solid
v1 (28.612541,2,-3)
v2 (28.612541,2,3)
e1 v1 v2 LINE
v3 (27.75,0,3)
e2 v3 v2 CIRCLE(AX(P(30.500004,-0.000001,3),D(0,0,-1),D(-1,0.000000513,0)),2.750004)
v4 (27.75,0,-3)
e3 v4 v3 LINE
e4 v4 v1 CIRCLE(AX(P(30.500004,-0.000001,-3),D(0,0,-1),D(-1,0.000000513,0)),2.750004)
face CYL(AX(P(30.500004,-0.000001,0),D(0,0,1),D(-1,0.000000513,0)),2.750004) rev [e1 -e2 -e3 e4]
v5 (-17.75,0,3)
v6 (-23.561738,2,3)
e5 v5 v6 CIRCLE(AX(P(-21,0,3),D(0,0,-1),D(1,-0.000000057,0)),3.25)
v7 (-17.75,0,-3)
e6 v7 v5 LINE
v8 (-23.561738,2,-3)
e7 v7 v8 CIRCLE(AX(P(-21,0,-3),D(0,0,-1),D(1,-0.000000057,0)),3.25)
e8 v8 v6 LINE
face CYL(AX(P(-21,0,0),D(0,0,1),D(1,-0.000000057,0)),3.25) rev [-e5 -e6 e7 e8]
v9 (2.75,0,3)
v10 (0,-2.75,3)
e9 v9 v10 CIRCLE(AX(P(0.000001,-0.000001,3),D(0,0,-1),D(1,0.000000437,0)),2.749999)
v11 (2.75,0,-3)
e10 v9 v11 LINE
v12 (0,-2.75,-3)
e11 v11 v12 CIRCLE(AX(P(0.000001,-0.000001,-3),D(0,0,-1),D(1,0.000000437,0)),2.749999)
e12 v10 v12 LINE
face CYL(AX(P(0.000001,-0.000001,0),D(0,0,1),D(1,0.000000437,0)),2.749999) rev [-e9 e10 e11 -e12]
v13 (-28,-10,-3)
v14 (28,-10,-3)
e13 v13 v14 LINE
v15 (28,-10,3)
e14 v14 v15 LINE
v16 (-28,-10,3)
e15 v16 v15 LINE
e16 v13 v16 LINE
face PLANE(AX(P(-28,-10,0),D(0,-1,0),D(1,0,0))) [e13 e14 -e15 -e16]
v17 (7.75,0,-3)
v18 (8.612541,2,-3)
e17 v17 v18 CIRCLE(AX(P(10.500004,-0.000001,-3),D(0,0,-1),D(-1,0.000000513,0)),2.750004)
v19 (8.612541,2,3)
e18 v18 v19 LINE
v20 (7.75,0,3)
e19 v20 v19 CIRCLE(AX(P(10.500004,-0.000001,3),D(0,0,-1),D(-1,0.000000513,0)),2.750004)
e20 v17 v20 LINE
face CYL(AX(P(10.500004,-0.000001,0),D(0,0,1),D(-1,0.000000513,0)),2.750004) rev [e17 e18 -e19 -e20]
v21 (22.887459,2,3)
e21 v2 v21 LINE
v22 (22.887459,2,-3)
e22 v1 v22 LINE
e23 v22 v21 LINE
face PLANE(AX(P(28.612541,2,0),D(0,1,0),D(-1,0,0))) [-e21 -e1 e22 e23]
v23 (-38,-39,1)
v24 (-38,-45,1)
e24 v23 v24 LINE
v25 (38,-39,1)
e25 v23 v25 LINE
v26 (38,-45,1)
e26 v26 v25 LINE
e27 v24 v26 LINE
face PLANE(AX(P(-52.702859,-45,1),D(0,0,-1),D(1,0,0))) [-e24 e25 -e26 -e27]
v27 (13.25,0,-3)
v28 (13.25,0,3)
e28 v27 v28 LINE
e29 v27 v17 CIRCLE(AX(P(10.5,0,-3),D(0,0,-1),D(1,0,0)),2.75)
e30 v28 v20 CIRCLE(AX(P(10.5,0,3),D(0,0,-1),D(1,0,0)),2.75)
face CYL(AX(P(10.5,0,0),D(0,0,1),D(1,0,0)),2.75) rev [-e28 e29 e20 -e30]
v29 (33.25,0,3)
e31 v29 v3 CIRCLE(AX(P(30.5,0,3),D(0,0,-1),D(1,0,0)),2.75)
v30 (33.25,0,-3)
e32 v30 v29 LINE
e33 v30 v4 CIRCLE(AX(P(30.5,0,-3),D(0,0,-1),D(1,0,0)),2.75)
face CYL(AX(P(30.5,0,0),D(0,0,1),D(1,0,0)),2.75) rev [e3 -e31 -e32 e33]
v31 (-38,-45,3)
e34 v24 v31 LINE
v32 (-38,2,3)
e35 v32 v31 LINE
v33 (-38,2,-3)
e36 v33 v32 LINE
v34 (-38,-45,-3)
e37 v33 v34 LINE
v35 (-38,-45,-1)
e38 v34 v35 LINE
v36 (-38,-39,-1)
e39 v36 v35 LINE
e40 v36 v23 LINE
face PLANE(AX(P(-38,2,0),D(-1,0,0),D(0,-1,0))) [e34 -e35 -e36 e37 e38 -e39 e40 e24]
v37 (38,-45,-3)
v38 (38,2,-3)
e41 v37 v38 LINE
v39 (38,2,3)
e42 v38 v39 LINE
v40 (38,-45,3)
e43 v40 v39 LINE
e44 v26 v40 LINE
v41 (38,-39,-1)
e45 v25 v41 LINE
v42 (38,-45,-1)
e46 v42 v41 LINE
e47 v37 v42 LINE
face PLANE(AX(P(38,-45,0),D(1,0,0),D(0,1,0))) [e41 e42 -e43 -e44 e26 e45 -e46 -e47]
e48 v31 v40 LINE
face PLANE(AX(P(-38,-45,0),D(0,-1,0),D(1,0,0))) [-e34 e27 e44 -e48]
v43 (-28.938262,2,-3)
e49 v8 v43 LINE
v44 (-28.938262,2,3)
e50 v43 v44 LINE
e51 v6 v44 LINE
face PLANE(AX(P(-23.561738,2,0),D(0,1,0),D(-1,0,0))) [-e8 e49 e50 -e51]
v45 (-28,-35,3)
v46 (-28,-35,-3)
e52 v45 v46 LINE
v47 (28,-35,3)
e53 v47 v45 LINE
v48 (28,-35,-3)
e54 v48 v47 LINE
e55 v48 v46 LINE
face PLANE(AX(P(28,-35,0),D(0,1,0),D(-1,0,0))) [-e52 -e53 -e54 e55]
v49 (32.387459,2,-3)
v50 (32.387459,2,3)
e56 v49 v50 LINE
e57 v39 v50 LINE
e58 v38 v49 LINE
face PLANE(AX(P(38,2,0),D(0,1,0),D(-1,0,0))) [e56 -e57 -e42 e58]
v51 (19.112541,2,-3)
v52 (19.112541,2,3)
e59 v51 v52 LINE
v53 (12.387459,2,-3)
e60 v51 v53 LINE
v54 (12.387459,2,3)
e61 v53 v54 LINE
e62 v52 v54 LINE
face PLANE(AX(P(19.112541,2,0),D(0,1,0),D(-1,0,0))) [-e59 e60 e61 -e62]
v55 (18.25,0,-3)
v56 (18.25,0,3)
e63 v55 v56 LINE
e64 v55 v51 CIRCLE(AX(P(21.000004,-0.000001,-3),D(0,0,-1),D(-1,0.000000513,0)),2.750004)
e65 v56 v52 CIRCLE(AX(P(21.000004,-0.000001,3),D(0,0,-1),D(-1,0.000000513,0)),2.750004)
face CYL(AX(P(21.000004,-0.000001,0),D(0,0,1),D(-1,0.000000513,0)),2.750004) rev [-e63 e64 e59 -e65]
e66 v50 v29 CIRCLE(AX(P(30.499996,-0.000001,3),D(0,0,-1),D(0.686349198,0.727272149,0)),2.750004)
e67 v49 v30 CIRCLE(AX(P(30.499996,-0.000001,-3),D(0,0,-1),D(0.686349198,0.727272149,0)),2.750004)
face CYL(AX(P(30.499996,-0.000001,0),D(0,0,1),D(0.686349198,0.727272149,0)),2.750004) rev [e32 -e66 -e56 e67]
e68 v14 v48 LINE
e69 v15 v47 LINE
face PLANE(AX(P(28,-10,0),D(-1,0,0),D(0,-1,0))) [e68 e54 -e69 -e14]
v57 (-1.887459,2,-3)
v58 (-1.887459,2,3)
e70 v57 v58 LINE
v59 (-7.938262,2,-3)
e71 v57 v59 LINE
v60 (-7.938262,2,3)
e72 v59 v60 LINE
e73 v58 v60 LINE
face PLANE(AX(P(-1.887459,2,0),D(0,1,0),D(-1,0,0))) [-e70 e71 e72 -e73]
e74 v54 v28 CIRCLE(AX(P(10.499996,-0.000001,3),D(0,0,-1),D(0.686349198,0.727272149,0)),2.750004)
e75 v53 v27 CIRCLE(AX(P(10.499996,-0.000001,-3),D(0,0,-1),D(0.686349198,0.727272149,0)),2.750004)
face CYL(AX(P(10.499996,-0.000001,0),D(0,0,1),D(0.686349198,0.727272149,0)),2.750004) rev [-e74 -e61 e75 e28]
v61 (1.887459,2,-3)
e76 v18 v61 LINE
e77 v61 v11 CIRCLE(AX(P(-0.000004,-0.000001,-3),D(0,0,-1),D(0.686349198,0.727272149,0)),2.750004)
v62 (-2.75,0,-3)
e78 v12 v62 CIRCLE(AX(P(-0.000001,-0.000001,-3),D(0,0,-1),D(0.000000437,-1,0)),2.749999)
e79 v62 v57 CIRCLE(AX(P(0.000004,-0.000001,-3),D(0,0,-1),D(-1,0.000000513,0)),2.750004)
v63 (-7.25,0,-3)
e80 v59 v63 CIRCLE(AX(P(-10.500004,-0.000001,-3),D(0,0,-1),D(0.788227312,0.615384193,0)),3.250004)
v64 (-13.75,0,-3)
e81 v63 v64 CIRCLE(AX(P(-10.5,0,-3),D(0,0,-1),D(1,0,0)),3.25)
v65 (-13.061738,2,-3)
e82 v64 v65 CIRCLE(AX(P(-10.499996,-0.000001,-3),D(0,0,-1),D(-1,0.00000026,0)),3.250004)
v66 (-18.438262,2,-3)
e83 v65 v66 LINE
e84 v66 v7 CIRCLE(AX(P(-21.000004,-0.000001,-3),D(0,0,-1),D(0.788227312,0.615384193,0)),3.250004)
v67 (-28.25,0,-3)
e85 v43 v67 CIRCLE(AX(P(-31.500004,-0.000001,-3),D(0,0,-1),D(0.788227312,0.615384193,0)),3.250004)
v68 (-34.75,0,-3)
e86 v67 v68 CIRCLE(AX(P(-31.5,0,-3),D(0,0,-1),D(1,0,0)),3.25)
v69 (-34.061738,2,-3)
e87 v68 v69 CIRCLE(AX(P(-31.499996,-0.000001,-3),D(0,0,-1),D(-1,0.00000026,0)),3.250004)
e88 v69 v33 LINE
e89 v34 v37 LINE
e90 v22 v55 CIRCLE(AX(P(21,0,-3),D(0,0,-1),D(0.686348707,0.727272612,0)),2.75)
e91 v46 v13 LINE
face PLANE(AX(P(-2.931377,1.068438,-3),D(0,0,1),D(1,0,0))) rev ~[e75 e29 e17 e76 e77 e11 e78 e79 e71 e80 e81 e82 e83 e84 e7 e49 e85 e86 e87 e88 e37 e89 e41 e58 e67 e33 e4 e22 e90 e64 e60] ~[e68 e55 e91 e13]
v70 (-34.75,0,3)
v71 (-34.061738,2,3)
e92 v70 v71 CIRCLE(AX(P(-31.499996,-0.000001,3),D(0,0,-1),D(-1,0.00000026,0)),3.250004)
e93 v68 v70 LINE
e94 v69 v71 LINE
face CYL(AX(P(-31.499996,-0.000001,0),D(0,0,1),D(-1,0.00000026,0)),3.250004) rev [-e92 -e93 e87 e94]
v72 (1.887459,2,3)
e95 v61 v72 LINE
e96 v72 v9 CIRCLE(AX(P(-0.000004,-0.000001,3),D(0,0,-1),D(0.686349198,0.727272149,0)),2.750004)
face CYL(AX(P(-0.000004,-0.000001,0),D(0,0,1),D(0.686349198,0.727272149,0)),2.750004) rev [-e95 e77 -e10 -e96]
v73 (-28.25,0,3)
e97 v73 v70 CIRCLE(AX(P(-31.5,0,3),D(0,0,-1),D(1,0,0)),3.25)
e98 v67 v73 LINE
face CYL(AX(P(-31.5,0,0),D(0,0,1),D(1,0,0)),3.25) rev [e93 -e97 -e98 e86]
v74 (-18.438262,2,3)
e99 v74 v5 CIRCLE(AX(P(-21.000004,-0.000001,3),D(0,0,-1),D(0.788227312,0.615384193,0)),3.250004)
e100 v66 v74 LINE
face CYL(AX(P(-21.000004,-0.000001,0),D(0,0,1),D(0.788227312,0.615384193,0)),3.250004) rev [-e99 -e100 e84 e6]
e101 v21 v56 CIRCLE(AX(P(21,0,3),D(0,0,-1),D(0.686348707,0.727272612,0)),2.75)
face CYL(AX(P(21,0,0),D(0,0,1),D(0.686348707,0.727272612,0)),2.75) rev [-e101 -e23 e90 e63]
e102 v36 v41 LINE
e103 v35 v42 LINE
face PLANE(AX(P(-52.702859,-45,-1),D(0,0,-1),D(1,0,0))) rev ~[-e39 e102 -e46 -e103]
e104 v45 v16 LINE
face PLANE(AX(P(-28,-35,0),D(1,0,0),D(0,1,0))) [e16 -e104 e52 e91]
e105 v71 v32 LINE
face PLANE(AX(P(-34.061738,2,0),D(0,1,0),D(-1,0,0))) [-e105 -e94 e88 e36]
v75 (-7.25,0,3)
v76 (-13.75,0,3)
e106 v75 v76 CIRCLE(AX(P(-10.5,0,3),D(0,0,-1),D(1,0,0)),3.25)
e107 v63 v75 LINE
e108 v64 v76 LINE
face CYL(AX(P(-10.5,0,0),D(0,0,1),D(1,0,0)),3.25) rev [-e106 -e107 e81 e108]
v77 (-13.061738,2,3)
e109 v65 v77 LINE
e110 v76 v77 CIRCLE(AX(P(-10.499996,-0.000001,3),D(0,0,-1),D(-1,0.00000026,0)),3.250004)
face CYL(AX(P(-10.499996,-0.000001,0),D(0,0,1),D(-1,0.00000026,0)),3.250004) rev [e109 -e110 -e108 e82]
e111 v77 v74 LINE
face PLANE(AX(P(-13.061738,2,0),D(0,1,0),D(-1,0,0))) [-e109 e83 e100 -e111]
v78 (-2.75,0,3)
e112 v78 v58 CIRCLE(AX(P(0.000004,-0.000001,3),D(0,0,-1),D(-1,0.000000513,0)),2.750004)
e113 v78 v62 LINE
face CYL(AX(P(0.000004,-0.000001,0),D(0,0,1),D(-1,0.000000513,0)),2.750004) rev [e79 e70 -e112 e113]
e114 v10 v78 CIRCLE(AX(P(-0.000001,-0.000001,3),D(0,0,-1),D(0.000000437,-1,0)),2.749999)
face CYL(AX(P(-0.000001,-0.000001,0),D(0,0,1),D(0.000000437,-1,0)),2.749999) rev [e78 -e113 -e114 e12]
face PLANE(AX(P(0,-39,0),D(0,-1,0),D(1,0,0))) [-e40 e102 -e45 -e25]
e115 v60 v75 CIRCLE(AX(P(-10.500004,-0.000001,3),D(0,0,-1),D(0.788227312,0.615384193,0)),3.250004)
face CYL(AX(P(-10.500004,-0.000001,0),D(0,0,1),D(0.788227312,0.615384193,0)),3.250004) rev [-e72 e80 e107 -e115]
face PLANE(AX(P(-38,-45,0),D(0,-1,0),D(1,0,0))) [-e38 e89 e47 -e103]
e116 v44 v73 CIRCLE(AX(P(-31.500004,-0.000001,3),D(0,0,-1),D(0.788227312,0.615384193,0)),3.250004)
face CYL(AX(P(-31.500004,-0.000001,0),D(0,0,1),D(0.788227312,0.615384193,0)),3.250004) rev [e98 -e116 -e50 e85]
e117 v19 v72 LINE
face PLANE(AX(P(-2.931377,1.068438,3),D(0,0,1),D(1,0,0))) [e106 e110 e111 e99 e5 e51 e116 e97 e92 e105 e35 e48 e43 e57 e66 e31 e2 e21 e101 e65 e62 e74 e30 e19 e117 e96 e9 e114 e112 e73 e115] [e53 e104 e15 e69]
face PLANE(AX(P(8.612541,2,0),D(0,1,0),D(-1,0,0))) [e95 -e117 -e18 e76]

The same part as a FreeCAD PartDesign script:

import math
import FreeCAD as App
import Part
import Sketcher
from FreeCAD import Vector
Q = App.Units.Quantity

doc = App.newDocument("Part")
params = doc.addObject("Spreadsheet::Sheet", "Params")
for row, (alias, value) in enumerate([
    ("sketch1_width", "76 mm"),
    ("sketch1_width2", "56 mm"),
    ("sketch1_height", "47 mm"),
    ("sketch1_height2", "25 mm"),
    ("sketch1_radius", "3.25 mm"),
    ("pad1_length", "3 mm"),
    ("pad1_length2", "3 mm"),
    ("sketch2_height", "2 mm"),
    ("pocket1_length", "6 mm"),
], start=1):
    params.set(f"A{row}", alias)
    params.set(f"B{row}", "=" + value)
    params.setAlias(f"B{row}", alias)

body = doc.addObject("PartDesign::Body", "Body")

# Sketch on XY plane
sketch1 = body.newObject("Sketcher::SketchObject", "Sketch")
sketch1.AttachmentSupport = (doc.getObject("XY_Plane"), [""])
sketch1.MapMode = "FlatFace"
sketch1.addGeometry([
    Part.ArcOfCircle(Part.Circle(Vector(0, 0, 0), Vector(0, 0, 1), 2.8), math.radians(133), math.radians(180)),  # 0
    Part.LineSegment(Vector(-1.9, 2, 0), Vector(-7.9, 2, 0)),  # 1
    Part.ArcOfCircle(Part.Circle(Vector(-10.5, 0, 0), Vector(0, 0, 1), 3.3), math.radians(0), math.radians(38)),  # 2
    Part.ArcOfCircle(Part.Circle(Vector(-10.5, 0, 0), Vector(0, 0, 1), 3.2), math.radians(180), math.radians(360)),  # 3
    Part.ArcOfCircle(Part.Circle(Vector(-10.5, 0, 0), Vector(0, 0, 1), 3.3), math.radians(142), math.radians(180)),  # 4
    Part.LineSegment(Vector(-13.1, 2, 0), Vector(-18.4, 2, 0)),  # 5
    Part.ArcOfCircle(Part.Circle(Vector(-21, 0, 0), Vector(0, 0, 1), 3.3), math.radians(0), math.radians(38)),  # 6
    Part.ArcOfCircle(Part.Circle(Vector(-21, 0, 0), Vector(0, 0, 1), 3.3), math.radians(142), math.radians(360)),  # 7
    Part.LineSegment(Vector(-23.6, 2, 0), Vector(-28.9, 2, 0)),  # 8
    Part.ArcOfCircle(Part.Circle(Vector(-31.5, 0, 0), Vector(0, 0, 1), 3.3), math.radians(0), math.radians(38)),  # 9
    Part.ArcOfCircle(Part.Circle(Vector(-31.5, 0, 0), Vector(0, 0, 1), 3.2), math.radians(180), math.radians(360)),  # 10
    Part.ArcOfCircle(Part.Circle(Vector(-31.5, 0, 0), Vector(0, 0, 1), 3.3), math.radians(142), math.radians(180)),  # 11
    Part.LineSegment(Vector(-34.1, 2, 0), Vector(-38, 2, 0)),  # 12
    Part.LineSegment(Vector(-38, 2, 0), Vector(-38, -45, 0)),  # 13
    Part.LineSegment(Vector(-38, -45, 0), Vector(38, -45, 0)),  # 14
    Part.LineSegment(Vector(38, -45, 0), Vector(38, 2, 0)),  # 15
    Part.LineSegment(Vector(38, 2, 0), Vector(32.4, 2, 0)),  # 16
    Part.ArcOfCircle(Part.Circle(Vector(30.5, 0, 0), Vector(0, 0, 1), 2.8), math.radians(0), math.radians(47)),  # 17
    Part.ArcOfCircle(Part.Circle(Vector(30.5, 0, 0), Vector(0, 0, 1), 2.8), math.radians(180), math.radians(360)),  # 18
    Part.ArcOfCircle(Part.Circle(Vector(30.5, 0, 0), Vector(0, 0, 1), 2.8), math.radians(133), math.radians(180)),  # 19
    Part.LineSegment(Vector(28.6, 2, 0), Vector(22.9, 2, 0)),  # 20
    Part.ArcOfCircle(Part.Circle(Vector(21, 0, 0), Vector(0, 0, 1), 2.8), math.radians(-180), math.radians(47)),  # 21
    Part.ArcOfCircle(Part.Circle(Vector(21, 0, 0), Vector(0, 0, 1), 2.8), math.radians(133), math.radians(180)),  # 22
    Part.LineSegment(Vector(19.1, 2, 0), Vector(12.4, 2, 0)),  # 23
    Part.ArcOfCircle(Part.Circle(Vector(10.5, 0, 0), Vector(0, 0, 1), 2.8), math.radians(0), math.radians(47)),  # 24
    Part.ArcOfCircle(Part.Circle(Vector(10.5, 0, 0), Vector(0, 0, 1), 2.8), math.radians(180), math.radians(360)),  # 25
    Part.ArcOfCircle(Part.Circle(Vector(10.5, 0, 0), Vector(0, 0, 1), 2.8), math.radians(133), math.radians(180)),  # 26
    Part.LineSegment(Vector(8.6, 2, 0), Vector(1.9, 2, 0)),  # 27
    Part.ArcOfCircle(Part.Circle(Vector(0, 0, 0), Vector(0, 0, 1), 2.8), math.radians(0), math.radians(47)),  # 28
    Part.ArcOfCircle(Part.Circle(Vector(0, 0, 0), Vector(0, 0, 1), 2.7), math.radians(-90), math.radians(0)),  # 29
    Part.ArcOfCircle(Part.Circle(Vector(0, 0, 0), Vector(0, 0, 1), 2.7), math.radians(180), math.radians(270)),  # 30
    Part.LineSegment(Vector(-28, -35, 0), Vector(-28, -10, 0)),  # 31
    Part.LineSegment(Vector(-28, -10, 0), Vector(28, -10, 0)),  # 32
    Part.LineSegment(Vector(28, -10, 0), Vector(28, -35, 0)),  # 33
    Part.LineSegment(Vector(28, -35, 0), Vector(-28, -35, 0)),  # 34
], False)
sketch1.addConstraint([
    Sketcher.Constraint("Coincident", 0, 1, 1, 1),
    Sketcher.Constraint("Coincident", 1, 2, 2, 2),
    Sketcher.Constraint("Tangent", 2, 1, 3, 2),
    Sketcher.Constraint("Tangent", 3, 1, 4, 2),
    Sketcher.Constraint("Coincident", 4, 1, 5, 1),
    Sketcher.Constraint("Coincident", 5, 2, 6, 2),
    Sketcher.Constraint("Tangent", 6, 1, 7, 2),
    Sketcher.Constraint("Coincident", 7, 1, 8, 1),
    Sketcher.Constraint("Coincident", 8, 2, 9, 2),
    Sketcher.Constraint("Tangent", 9, 1, 10, 2),
    Sketcher.Constraint("Tangent", 10, 1, 11, 2),
    Sketcher.Constraint("Coincident", 11, 1, 12, 1),
    Sketcher.Constraint("Coincident", 12, 2, 13, 1),
    Sketcher.Constraint("Coincident", 13, 2, 14, 1),
    Sketcher.Constraint("Coincident", 14, 2, 15, 1),
    Sketcher.Constraint("Coincident", 15, 2, 16, 1),
    Sketcher.Constraint("Coincident", 16, 2, 17, 2),
    Sketcher.Constraint("Tangent", 17, 1, 18, 2),
    Sketcher.Constraint("Tangent", 18, 1, 19, 2),
    Sketcher.Constraint("Coincident", 19, 1, 20, 1),
    Sketcher.Constraint("Coincident", 20, 2, 21, 2),
    Sketcher.Constraint("Tangent", 21, 1, 22, 2),
    Sketcher.Constraint("Coincident", 22, 1, 23, 1),
    Sketcher.Constraint("Coincident", 23, 2, 24, 2),
    Sketcher.Constraint("Tangent", 24, 1, 25, 2),
    Sketcher.Constraint("Tangent", 25, 1, 26, 2),
    Sketcher.Constraint("Coincident", 26, 1, 27, 1),
    Sketcher.Constraint("Coincident", 27, 2, 28, 2),
    Sketcher.Constraint("Tangent", 28, 1, 29, 2),
    Sketcher.Constraint("Tangent", 29, 1, 30, 2),
    Sketcher.Constraint("Tangent", 30, 1, 0, 2),
    Sketcher.Constraint("Coincident", 31, 2, 32, 1),
    Sketcher.Constraint("Coincident", 32, 2, 33, 1),
    Sketcher.Constraint("Coincident", 33, 2, 34, 1),
    Sketcher.Constraint("Coincident", 34, 2, 31, 1),
    Sketcher.Constraint("Horizontal", 1),
    Sketcher.Constraint("Horizontal", 5),
    Sketcher.Constraint("Horizontal", 8),
    Sketcher.Constraint("Horizontal", 12),
    Sketcher.Constraint("Vertical", 13),
    Sketcher.Constraint("Horizontal", 14),
    Sketcher.Constraint("Vertical", 15),
    Sketcher.Constraint("Horizontal", 16),
    Sketcher.Constraint("Horizontal", 20),
    Sketcher.Constraint("Horizontal", 23),
    Sketcher.Constraint("Horizontal", 27),
    Sketcher.Constraint("Vertical", 31),
    Sketcher.Constraint("Horizontal", 32),
    Sketcher.Constraint("Vertical", 33),
    Sketcher.Constraint("Horizontal", 34),
    Sketcher.Constraint("Coincident", 0, 3, -1, 1),
    Sketcher.Constraint("Coincident", 28, 3, -1, 1),
    Sketcher.Constraint("Equal", 2, 4),
    Sketcher.Constraint("Equal", 4, 6),
    Sketcher.Constraint("Equal", 3, 7),
    Sketcher.Constraint("Equal", 6, 9),
    Sketcher.Constraint("Equal", 7, 10),
    Sketcher.Constraint("Equal", 9, 11),
    Sketcher.Constraint("Equal", 0, 17),
    Sketcher.Constraint("Equal", 17, 19),
    Sketcher.Constraint("Equal", 18, 21),
    Sketcher.Constraint("Equal", 19, 22),
    Sketcher.Constraint("Equal", 22, 24),
    Sketcher.Constraint("Equal", 21, 25),
    Sketcher.Constraint("Equal", 24, 26),
    Sketcher.Constraint("Equal", 26, 28),
    Sketcher.Constraint("Equal", 25, 29),
    Sketcher.Constraint("Symmetric", 6, 3, 21, 3, -1, 1),
    Sketcher.Constraint("Symmetric", 2, 3, 24, 3, -1, 1),
    Sketcher.Constraint("Symmetric", 12, 2, 15, 2, -2),
    Sketcher.Constraint("PointOnObject", 2, 3, -1),
    Sketcher.Constraint("PointOnObject", 6, 3, -1),
    Sketcher.Constraint("PointOnObject", 9, 3, -1),
    Sketcher.Constraint("PointOnObject", 17, 3, -1),
    Sketcher.Constraint("PointOnObject", 2, 1, -1),
    Sketcher.Constraint("PointOnObject", 3, 1, -1),
    Sketcher.Constraint("PointOnObject", 6, 1, -1),
    Sketcher.Constraint("PointOnObject", 9, 1, -1),
    Sketcher.Constraint("PointOnObject", 10, 1, -1),
    Sketcher.Constraint("PointOnObject", 17, 1, -1),
    Sketcher.Constraint("PointOnObject", 18, 1, -1),
    Sketcher.Constraint("PointOnObject", 21, 1, -1),
    Sketcher.Constraint("PointOnObject", 24, 1, -1),
    Sketcher.Constraint("PointOnObject", 25, 1, -1),
    Sketcher.Constraint("PointOnObject", 28, 1, -1),
    Sketcher.Constraint("PointOnObject", 29, 1, -2),
    Sketcher.Constraint("PointOnObject", 30, 1, -1),
    Sketcher.Constraint("Horizontal", 1, 2, 4, 1),
    Sketcher.Constraint("Horizontal", 5, 2, 7, 1),
    Sketcher.Constraint("Horizontal", 8, 2, 11, 1),
    Sketcher.Constraint("Horizontal", 16, 2, 19, 1),
    Sketcher.Constraint("Horizontal", 20, 2, 22, 1),
    Sketcher.Constraint("Horizontal", 23, 2, 26, 1),
    Sketcher.Constraint("Equal", 5, 8),
    Sketcher.Constraint("Equal", 23, 27),
    Sketcher.Constraint("DistanceX", 14, 1, 14, 2, Q("76 mm")),
    Sketcher.Constraint("DistanceX", 32, 1, 32, 2, Q("56 mm")),
    Sketcher.Constraint("DistanceY", 13, 2, 13, 1, Q("47 mm")),
    Sketcher.Constraint("DistanceY", 31, 1, 31, 2, Q("25 mm")),
    Sketcher.Constraint("Radius", 3, Q("3.25 mm")),
    Sketcher.Constraint("Radius", 18, Q("2.75 mm")),
    Sketcher.Constraint("DistanceX", 7, 3, -1, 1, Q("21 mm")),
    Sketcher.Constraint("DistanceX", -1, 1, 21, 3, Q("21 mm")),
    Sketcher.Constraint("DistanceY", -1, 1, 0, 1, Q("2 mm")),
    Sketcher.Constraint("DistanceX", 31, 2, -1, 1, Q("28 mm")),
    Sketcher.Constraint("DistanceY", 31, 2, -1, 1, Q("10 mm")),
    Sketcher.Constraint("DistanceX", 2, 3, 17, 3, Q("40.999999 mm")),
])
sketch1.setExpression("Constraints[95]", "Params.sketch1_width")
sketch1.setExpression("Constraints[96]", "Params.sketch1_width2")
sketch1.setExpression("Constraints[97]", "Params.sketch1_height")
sketch1.setExpression("Constraints[98]", "Params.sketch1_height2")
sketch1.setExpression("Constraints[99]", "Params.sketch1_radius")
pad1 = body.newObject("PartDesign::Pad", "Pad")
pad1.Profile = sketch1
pad1.Type = "TwoLengths"
pad1.setExpression("Length", "Params.pad1_length")
pad1.setExpression("Length2", "Params.pad1_length2")

# Sketch on XZ plane
sketch2 = body.newObject("Sketcher::SketchObject", "Sketch001")
sketch2.AttachmentSupport = (doc.getObject("XZ_Plane"), [""])
sketch2.MapMode = "FlatFace"
sketch2.AttachmentOffset = App.Placement(Vector(0, 0, 45), App.Rotation())
sketch2.addGeometry([
    Part.LineSegment(Vector(-52.7, 1, 0), Vector(-52.7, -1, 0)),
    Part.LineSegment(Vector(-52.7, -1, 0), Vector(52.7, -1, 0)),
    Part.LineSegment(Vector(52.7, -1, 0), Vector(52.7, 1, 0)),
    Part.LineSegment(Vector(52.7, 1, 0), Vector(-52.7, 1, 0)),
], False)
sketch2.addConstraint([
    Sketcher.Constraint("Coincident", 0, 2, 1, 1),
    Sketcher.Constraint("Coincident", 1, 2, 2, 1),
    Sketcher.Constraint("Coincident", 2, 2, 3, 1),
    Sketcher.Constraint("Coincident", 3, 2, 0, 1),
    Sketcher.Constraint("Vertical", 0),
    Sketcher.Constraint("Horizontal", 1),
    Sketcher.Constraint("Vertical", 2),
    Sketcher.Constraint("Horizontal", 3),
    Sketcher.Constraint("Symmetric", 0, 2, 2, 2, -1, 1),
    Sketcher.Constraint("DistanceY", 0, 2, 0, 1, Q("2 mm")),
    Sketcher.Constraint("DistanceX", 1, 1, 1, 2, Q("105.405718 mm")),
])
sketch2.setExpression("Constraints[9]", "Params.sketch2_height")
pocket1 = body.newObject("PartDesign::Pocket", "Pocket")
pocket1.Profile = sketch2
pocket1.setExpression("Length", "Params.pocket1_length")

doc.recompute()
